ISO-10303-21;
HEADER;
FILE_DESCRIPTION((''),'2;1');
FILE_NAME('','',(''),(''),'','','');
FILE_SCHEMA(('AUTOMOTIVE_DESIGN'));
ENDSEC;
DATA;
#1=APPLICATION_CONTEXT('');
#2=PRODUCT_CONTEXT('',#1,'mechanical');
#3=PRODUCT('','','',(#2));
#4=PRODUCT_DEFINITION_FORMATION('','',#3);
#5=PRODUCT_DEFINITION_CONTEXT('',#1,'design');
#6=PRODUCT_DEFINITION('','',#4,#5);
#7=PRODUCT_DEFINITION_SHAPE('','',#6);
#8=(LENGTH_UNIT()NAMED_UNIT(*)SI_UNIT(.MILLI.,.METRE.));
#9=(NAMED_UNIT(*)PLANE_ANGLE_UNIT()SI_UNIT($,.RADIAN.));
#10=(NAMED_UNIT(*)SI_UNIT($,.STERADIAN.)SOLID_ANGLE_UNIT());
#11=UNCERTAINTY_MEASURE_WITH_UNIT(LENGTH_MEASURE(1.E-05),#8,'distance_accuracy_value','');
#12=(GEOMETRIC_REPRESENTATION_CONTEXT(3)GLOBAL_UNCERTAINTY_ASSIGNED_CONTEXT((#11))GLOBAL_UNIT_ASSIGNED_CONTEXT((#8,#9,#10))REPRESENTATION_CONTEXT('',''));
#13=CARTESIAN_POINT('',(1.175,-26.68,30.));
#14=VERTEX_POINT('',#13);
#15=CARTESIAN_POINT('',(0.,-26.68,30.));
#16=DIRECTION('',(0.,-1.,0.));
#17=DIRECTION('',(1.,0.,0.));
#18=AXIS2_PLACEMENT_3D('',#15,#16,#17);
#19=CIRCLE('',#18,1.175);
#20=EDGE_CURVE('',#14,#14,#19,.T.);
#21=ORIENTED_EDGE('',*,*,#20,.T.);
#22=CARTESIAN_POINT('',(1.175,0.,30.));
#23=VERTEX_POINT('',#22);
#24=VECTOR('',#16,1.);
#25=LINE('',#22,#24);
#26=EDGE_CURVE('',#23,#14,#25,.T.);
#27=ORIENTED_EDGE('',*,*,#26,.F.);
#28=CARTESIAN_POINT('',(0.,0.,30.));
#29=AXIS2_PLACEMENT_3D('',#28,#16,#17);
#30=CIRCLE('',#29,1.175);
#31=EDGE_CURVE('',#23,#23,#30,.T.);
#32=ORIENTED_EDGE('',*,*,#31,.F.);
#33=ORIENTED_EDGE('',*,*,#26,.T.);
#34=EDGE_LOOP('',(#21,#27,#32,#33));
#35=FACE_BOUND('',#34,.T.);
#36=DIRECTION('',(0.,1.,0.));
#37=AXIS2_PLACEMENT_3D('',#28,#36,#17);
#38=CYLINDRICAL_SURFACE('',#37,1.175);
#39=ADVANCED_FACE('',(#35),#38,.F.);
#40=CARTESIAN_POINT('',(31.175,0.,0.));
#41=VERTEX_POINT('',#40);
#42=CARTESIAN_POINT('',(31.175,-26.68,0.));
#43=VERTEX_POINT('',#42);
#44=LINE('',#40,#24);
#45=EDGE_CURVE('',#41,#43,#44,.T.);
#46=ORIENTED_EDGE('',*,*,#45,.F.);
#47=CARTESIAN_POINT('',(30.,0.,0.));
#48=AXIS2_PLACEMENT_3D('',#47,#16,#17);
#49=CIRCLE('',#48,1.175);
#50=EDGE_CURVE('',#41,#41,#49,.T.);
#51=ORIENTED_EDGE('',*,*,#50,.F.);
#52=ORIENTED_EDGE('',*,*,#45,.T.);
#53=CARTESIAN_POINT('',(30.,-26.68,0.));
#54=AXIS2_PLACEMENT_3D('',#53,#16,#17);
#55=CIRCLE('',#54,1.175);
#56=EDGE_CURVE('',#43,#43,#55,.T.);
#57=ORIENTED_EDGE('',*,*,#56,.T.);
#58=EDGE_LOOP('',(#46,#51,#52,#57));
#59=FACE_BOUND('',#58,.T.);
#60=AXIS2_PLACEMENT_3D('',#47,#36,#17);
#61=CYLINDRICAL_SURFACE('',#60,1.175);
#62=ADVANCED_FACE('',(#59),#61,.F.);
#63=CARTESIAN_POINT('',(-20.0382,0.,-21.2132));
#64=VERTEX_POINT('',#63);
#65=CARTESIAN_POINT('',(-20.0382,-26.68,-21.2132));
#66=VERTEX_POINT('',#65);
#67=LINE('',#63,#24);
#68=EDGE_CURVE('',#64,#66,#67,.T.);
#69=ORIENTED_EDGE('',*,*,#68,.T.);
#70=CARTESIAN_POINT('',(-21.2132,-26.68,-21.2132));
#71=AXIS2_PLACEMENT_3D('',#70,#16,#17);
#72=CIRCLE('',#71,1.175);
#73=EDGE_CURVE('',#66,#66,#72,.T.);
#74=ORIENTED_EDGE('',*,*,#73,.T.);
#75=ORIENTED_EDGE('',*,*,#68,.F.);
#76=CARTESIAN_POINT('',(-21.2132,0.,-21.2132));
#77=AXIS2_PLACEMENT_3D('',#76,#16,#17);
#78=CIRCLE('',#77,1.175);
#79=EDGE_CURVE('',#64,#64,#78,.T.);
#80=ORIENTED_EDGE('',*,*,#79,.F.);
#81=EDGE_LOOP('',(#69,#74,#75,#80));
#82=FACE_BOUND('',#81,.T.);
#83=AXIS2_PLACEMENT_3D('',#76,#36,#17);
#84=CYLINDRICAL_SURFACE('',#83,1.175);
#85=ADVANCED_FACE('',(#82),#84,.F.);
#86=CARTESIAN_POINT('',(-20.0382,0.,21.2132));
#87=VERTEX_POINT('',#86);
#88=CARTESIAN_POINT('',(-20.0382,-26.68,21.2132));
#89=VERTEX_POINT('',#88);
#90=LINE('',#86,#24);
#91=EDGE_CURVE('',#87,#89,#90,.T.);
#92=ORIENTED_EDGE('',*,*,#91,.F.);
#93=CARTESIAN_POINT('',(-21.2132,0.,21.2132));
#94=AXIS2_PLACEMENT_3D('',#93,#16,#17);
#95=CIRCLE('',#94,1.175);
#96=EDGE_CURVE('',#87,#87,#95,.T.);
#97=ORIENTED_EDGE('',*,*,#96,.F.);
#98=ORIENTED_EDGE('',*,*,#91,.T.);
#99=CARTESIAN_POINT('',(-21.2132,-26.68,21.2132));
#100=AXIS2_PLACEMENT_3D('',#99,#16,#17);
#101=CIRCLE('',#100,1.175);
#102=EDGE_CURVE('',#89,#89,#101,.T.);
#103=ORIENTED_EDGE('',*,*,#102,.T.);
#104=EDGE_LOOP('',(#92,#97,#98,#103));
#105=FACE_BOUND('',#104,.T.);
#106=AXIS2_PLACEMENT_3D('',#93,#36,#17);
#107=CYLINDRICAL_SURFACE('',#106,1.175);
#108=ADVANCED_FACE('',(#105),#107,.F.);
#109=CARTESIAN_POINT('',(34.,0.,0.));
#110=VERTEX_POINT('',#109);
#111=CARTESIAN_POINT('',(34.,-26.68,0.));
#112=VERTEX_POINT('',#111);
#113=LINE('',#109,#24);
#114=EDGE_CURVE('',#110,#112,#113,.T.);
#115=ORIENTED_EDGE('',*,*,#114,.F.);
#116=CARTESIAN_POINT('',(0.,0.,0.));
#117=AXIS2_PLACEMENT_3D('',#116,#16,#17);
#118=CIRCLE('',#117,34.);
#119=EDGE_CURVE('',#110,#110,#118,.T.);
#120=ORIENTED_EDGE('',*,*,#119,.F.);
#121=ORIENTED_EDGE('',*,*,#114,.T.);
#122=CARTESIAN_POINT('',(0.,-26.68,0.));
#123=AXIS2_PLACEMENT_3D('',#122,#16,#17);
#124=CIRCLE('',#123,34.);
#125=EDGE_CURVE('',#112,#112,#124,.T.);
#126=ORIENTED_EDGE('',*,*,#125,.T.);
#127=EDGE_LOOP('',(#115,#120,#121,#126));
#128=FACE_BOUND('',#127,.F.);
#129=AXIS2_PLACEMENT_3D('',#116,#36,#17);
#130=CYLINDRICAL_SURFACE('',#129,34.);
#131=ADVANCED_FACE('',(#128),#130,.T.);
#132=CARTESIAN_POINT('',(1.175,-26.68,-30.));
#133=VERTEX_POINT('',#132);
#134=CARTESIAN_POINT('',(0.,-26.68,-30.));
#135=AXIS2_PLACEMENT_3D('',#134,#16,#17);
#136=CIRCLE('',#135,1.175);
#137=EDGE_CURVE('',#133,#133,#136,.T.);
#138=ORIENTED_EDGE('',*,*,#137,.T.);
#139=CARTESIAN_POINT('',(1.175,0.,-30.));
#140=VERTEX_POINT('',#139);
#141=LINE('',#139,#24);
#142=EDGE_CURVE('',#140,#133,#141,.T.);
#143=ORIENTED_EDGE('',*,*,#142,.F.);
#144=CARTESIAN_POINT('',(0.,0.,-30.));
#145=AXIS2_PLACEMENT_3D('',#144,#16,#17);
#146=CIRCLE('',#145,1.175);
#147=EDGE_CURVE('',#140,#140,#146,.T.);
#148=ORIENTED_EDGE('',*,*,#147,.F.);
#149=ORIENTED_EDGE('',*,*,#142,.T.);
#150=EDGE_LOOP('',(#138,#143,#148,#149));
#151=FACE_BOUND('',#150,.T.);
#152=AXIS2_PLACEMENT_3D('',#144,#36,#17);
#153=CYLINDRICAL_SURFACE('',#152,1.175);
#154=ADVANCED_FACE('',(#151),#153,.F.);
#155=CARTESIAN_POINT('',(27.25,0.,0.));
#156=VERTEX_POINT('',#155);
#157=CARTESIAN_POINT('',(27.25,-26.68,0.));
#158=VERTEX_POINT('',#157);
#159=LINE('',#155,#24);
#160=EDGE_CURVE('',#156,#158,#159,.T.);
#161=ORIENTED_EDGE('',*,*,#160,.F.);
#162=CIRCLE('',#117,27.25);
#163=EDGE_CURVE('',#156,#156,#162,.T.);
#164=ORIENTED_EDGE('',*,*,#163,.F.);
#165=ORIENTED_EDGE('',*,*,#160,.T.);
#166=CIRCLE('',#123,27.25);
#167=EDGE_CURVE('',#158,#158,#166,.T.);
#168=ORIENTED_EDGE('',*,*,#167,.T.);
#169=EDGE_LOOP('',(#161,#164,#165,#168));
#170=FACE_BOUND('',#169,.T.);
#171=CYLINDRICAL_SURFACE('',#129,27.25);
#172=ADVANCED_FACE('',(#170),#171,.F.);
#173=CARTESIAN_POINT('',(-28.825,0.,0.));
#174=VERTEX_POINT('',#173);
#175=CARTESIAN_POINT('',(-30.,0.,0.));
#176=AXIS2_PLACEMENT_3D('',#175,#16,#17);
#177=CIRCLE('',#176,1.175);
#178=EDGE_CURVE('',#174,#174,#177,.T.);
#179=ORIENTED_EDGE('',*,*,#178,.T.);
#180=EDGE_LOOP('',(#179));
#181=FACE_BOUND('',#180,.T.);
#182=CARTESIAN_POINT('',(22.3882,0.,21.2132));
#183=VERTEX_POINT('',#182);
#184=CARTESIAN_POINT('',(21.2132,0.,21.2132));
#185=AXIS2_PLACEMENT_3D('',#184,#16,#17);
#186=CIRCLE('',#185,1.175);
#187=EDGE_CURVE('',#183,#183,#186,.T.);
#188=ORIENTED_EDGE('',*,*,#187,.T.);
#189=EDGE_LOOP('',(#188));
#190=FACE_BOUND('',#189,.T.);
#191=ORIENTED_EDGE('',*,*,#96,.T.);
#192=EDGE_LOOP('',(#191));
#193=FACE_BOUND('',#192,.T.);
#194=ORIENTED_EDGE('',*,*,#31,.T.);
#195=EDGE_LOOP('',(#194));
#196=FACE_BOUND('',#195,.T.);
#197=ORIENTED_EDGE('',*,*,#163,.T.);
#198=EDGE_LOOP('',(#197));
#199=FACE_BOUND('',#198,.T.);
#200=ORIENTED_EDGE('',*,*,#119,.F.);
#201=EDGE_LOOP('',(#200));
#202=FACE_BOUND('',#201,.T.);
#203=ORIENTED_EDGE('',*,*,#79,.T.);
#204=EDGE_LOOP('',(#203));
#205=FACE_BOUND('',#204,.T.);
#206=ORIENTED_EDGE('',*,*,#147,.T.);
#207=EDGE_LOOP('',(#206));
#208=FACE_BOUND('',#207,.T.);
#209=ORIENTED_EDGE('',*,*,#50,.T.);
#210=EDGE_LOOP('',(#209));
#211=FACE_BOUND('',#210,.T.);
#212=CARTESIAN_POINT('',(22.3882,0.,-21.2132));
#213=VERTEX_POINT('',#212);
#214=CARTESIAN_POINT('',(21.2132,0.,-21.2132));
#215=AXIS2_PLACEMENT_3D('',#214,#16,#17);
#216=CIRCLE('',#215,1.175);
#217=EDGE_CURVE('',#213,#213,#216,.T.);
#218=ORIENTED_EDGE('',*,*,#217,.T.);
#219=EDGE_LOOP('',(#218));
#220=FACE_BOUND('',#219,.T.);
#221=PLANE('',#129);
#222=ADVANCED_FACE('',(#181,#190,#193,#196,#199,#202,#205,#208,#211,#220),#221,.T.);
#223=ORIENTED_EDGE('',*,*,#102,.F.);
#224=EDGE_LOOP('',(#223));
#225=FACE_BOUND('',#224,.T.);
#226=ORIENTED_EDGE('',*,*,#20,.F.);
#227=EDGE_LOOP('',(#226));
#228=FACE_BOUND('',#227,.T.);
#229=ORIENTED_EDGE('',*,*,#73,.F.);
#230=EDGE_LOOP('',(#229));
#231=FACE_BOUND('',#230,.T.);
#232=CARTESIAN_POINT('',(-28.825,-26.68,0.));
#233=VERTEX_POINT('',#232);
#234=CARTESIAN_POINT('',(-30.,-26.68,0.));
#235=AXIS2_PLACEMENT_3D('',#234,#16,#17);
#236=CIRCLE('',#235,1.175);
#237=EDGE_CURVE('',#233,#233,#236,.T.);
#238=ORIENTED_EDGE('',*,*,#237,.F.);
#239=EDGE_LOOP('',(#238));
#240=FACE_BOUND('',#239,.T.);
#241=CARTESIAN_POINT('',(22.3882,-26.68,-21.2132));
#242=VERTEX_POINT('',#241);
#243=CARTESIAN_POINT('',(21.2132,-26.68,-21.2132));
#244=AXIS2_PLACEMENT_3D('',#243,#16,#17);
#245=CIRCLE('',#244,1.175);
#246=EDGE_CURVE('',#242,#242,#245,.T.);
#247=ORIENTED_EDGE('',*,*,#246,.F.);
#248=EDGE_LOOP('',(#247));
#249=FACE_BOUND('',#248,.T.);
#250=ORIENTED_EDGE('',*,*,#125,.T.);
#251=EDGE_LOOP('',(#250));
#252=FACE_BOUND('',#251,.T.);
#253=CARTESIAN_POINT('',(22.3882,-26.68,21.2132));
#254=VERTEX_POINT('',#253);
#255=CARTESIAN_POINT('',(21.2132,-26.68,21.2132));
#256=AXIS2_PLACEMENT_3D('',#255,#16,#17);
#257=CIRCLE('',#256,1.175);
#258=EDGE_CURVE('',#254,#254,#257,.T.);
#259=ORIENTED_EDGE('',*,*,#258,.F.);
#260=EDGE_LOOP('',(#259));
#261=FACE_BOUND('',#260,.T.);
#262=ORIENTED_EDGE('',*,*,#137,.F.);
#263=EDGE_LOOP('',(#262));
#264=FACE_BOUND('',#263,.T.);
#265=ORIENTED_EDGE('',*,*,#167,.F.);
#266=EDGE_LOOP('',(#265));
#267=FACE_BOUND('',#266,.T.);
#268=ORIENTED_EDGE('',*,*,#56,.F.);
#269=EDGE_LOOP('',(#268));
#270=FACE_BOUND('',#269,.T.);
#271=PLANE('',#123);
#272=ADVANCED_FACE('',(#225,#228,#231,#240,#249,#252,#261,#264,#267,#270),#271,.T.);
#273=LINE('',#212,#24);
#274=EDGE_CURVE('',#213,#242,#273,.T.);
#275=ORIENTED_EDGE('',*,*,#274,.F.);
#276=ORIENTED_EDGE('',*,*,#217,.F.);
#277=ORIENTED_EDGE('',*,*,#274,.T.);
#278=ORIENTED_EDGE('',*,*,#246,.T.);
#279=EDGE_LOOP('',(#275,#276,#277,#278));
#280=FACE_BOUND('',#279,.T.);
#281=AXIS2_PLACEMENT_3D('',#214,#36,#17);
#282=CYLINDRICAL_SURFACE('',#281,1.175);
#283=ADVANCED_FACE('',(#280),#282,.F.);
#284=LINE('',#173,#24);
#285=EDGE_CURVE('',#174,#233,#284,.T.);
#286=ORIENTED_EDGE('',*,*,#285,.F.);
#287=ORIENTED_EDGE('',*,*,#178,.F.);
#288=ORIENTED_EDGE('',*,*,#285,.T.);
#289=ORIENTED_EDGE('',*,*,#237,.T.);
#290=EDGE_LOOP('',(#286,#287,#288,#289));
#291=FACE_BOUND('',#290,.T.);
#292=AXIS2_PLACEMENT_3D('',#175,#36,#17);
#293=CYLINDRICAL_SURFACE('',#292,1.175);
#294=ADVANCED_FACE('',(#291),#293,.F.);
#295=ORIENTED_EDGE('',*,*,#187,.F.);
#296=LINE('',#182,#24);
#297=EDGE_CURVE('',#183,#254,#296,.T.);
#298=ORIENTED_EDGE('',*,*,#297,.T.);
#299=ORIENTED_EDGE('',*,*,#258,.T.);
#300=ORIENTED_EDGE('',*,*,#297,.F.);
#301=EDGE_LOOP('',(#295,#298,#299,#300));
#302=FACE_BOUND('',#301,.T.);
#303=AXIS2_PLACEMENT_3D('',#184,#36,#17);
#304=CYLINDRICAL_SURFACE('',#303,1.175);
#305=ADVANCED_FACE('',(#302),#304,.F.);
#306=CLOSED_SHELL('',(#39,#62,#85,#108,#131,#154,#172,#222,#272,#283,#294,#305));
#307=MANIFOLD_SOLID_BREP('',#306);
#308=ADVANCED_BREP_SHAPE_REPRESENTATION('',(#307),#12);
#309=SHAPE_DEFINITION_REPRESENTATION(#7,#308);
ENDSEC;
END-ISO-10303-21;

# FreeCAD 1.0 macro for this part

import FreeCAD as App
import Part
import Sketcher

V = App.Vector

doc = App.newDocument("Part")
body = doc.addObject("PartDesign::Body", "Body")

# Sketch on XZ plane
sketch1 = doc.addObject("Sketcher::SketchObject", "Sketch")
body.addObject(sketch1)
sketch1.AttachmentSupport = (doc.XZ_Plane, [""])
sketch1.MapMode = "FlatFace"
sketch1.addGeometry(Part.Circle(V(0, 0, 0), V(0, 0, 1), 34), False)
sketch1.addGeometry(Part.Circle(V(21.2, -21.2, 0), V(0, 0, 1), 1.2), False)
sketch1.addGeometry(Part.Circle(V(4.8, -8.2, 0), V(0, 0, 1), 1.6), False)
sketch1.addGeometry(Part.Circle(V(0, -30, 0), V(0, 0, 1), 1.2), False)
sketch1.addGeometry(Part.Circle(V(-21.2, -21.2, 0), V(0, 0, 1), 1.2), False)
sketch1.addGeometry(Part.Circle(V(-4.8, -8.2, 0), V(0, 0, 1), 1.6), False)
sketch1.addGeometry(Part.Circle(V(30, 0, 0), V(0, 0, 1), 1.2), False)
sketch1.addGeometry(Part.Circle(V(9.5, 0, 0), V(0, 0, 1), 1.6), False)
sketch1.addGeometry(Part.Circle(V(4.8, 8.2, 0), V(0, 0, 1), 1.6), False)
sketch1.addGeometry(Part.Circle(V(21.2, 21.2, 0), V(0, 0, 1), 1.2), False)
sketch1.addGeometry(Part.Circle(V(-4.8, 8.2, 0), V(0, 0, 1), 1.6), False)
sketch1.addGeometry(Part.Circle(V(-9.5, 0, 0), V(0, 0, 1), 1.6), False)
sketch1.addGeometry(Part.Circle(V(-30, 0, 0), V(0, 0, 1), 1.2), False)
sketch1.addGeometry(Part.Circle(V(0, 30, 0), V(0, 0, 1), 1.2), False)
sketch1.addGeometry(Part.Circle(V(-21.2, 21.2, 0), V(0, 0, 1), 1.2), False)
sketch1.addConstraint(Sketcher.Constraint("Coincident", 0, 3, -1, 1))
sketch1.addConstraint(Sketcher.Constraint("Equal", 1, 3))
sketch1.addConstraint(Sketcher.Constraint("Equal", 3, 4))
sketch1.addConstraint(Sketcher.Constraint("Equal", 2, 5))
sketch1.addConstraint(Sketcher.Constraint("Equal", 4, 6))
sketch1.addConstraint(Sketcher.Constraint("Equal", 5, 7))
sketch1.addConstraint(Sketcher.Constraint("Equal", 7, 8))
sketch1.addConstraint(Sketcher.Constraint("Equal", 6, 9))
sketch1.addConstraint(Sketcher.Constraint("Equal", 8, 10))
sketch1.addConstraint(Sketcher.Constraint("Equal", 10, 11))
sketch1.addConstraint(Sketcher.Constraint("Equal", 9, 12))
sketch1.addConstraint(Sketcher.Constraint("Equal", 12, 13))
sketch1.addConstraint(Sketcher.Constraint("Equal", 13, 14))
sketch1.addConstraint(Sketcher.Constraint("Symmetric", 5, 3, 8, 3, -1, 1))
sketch1.addConstraint(Sketcher.Constraint("Symmetric", 4, 3, 9, 3, -1, 1))
sketch1.addConstraint(Sketcher.Constraint("Symmetric", 2, 3, 10, 3, -1, 1))
sketch1.addConstraint(Sketcher.Constraint("Symmetric", 7, 3, 11, 3, -1, 1))
sketch1.addConstraint(Sketcher.Constraint("Symmetric", 6, 3, 12, 3, -1, 1))
sketch1.addConstraint(Sketcher.Constraint("Symmetric", 3, 3, 13, 3, -1, 1))
sketch1.addConstraint(Sketcher.Constraint("Symmetric", 1, 3, 14, 3, -1, 1))
sketch1.addConstraint(Sketcher.Constraint("Symmetric", 1, 3, 4, 3, -2))
sketch1.addConstraint(Sketcher.Constraint("Symmetric", 2, 3, 5, 3, -2))
sketch1.addConstraint(Sketcher.Constraint("PointOnObject", 3, 3, -2))
sketch1.addConstraint(Sketcher.Constraint("PointOnObject", 6, 3, -1))
sketch1.addConstraint(Sketcher.Constraint("PointOnObject", 7, 3, -1))
sketch1.addConstraint(Sketcher.Constraint("Diameter", 0, 68.0))
sketch1.addConstraint(Sketcher.Constraint("Diameter", 2, 3.2))
sketch1.addConstraint(Sketcher.Constraint("Diameter", 1, 2.35))
sketch1.addConstraint(Sketcher.Constraint("DistanceY", 3, 3, -1, 1, 30.0))
sketch1.addConstraint(Sketcher.Constraint("DistanceX", -1, 1, 6, 3, 30.0))
sketch1.addConstraint(Sketcher.Constraint("DistanceX", -1, 1, 7, 3, 9.5))
sketch1.addConstraint(Sketcher.Constraint("DistanceX", 5, 3, 2, 3, 9.5))
sketch1.addConstraint(Sketcher.Constraint("DistanceY", 1, 3, 2, 3, 12.986))
sketch1.addConstraint(Sketcher.Constraint("DistanceX", -1, 1, 1, 3, 21.2132))
sketch1.addConstraint(Sketcher.Constraint("DistanceY", 1, 3, -1, 1, 21.2132))
pad1 = doc.addObject("PartDesign::Pad", "Pad")
body.addObject(pad1)
pad1.Profile = sketch1
pad1.Length = 5
pad1.Reversed = True

# Sketch on XZ plane
sketch2 = doc.addObject("Sketcher::SketchObject", "Sketch001")
body.addObject(sketch2)
sketch2.AttachmentSupport = (doc.XZ_Plane, [""])
sketch2.MapMode = "FlatFace"
sketch2.addGeometry(Part.Circle(V(0, 0, 0), V(0, 0, 1), 34), False)
sketch2.addGeometry(Part.Circle(V(-21.2, -21.2, 0), V(0, 0, 1), 1.2), False)
sketch2.addGeometry(Part.Circle(V(0, -30, 0), V(0, 0, 1), 1.2), False)
sketch2.addGeometry(Part.Circle(V(21.2, -21.2, 0), V(0, 0, 1), 1.2), False)
sketch2.addGeometry(Part.Circle(V(-30, 0, 0), V(0, 0, 1), 1.2), False)
sketch2.addGeometry(Part.Circle(V(-21.2, 21.2, 0), V(0, 0, 1), 1.2), False)
sketch2.addGeometry(Part.Circle(V(0, 0, 0), V(0, 0, 1), 27.2), False)
sketch2.addGeometry(Part.Circle(V(30, 0, 0), V(0, 0, 1), 1.2), False)
sketch2.addGeometry(Part.Circle(V(21.2, 21.2, 0), V(0, 0, 1), 1.2), False)
sketch2.addGeometry(Part.Circle(V(0, 30, 0), V(0, 0, 1), 1.2), False)
sketch2.addConstraint(Sketcher.Constraint("Coincident", 0, 3, -1, 1))
sketch2.addConstraint(Sketcher.Constraint("Coincident", 6, 3, -1, 1))
sketch2.addConstraint(Sketcher.Constraint("Equal", 1, 2))
sketch2.addConstraint(Sketcher.Constraint("Equal", 2, 3))
sketch2.addConstraint(Sketcher.Constraint("Equal", 3, 4))
sketch2.addConstraint(Sketcher.Constraint("Equal", 4, 5))
sketch2.addConstraint(Sketcher.Constraint("Equal", 5, 7))
sketch2.addConstraint(Sketcher.Constraint("Equal", 7, 8))
sketch2.addConstraint(Sketcher.Constraint("Equal", 8, 9))
sketch2.addConstraint(Sketcher.Constraint("Symmetric", 3, 3, 5, 3, -1, 1))
sketch2.addConstraint(Sketcher.Constraint("Symmetric", 4, 3, 7, 3, -1, 1))
sketch2.addConstraint(Sketcher.Constraint("Symmetric", 1, 3, 8, 3, -1, 1))
sketch2.addConstraint(Sketcher.Constraint("Symmetric", 2, 3, 9, 3, -1, 1))
sketch2.addConstraint(Sketcher.Constraint("Symmetric", 1, 3, 3, 3, -2))
sketch2.addConstraint(Sketcher.Constraint("PointOnObject", 2, 3, -2))
sketch2.addConstraint(Sketcher.Constraint("PointOnObject", 4, 3, -1))
sketch2.addConstraint(Sketcher.Constraint("Diameter", 6, 54.5))
sketch2.addConstraint(Sketcher.Constraint("Diameter", 0, 68.0))
sketch2.addConstraint(Sketcher.Constraint("Diameter", 1, 2.35))
sketch2.addConstraint(Sketcher.Constraint("DistanceY", 2, 3, -1, 1, 30.0))
sketch2.addConstraint(Sketcher.Constraint("DistanceX", 4, 3, -1, 1, 30.0))
sketch2.addConstraint(Sketcher.Constraint("DistanceX", 1, 3, -1, 1, 21.2132))
sketch2.addConstraint(Sketcher.Constraint("DistanceY", 1, 3, -1, 1, 21.2132))
pad2 = doc.addObject("PartDesign::Pad", "Pad001")
body.addObject(pad2)
pad2.Profile = sketch2
pad2.Length = 26.68

# Sketch on XZ plane
sketch3 = doc.addObject("Sketcher::SketchObject", "Sketch002")
body.addObject(sketch3)
sketch3.AttachmentSupport = (doc.XZ_Plane, [""])
sketch3.MapMode = "FlatFace"
sketch3.AttachmentOffset = App.Placement(V(0, 0, -5), App.Rotation())
sketch3.addGeometry(Part.Circle(V(0, 0, 0), V(0, 0, 1), 34), False)
sketch3.addConstraint(Sketcher.Constraint("Coincident", 0, 3, -1, 1))
sketch3.addConstraint(Sketcher.Constraint("Diameter", 0, 68.0))
pocket1 = doc.addObject("PartDesign::Pocket", "Pocket")
body.addObject(pocket1)
pocket1.Profile = sketch3
pocket1.Length = 5
pocket1.Reversed = True

doc.recompute()
